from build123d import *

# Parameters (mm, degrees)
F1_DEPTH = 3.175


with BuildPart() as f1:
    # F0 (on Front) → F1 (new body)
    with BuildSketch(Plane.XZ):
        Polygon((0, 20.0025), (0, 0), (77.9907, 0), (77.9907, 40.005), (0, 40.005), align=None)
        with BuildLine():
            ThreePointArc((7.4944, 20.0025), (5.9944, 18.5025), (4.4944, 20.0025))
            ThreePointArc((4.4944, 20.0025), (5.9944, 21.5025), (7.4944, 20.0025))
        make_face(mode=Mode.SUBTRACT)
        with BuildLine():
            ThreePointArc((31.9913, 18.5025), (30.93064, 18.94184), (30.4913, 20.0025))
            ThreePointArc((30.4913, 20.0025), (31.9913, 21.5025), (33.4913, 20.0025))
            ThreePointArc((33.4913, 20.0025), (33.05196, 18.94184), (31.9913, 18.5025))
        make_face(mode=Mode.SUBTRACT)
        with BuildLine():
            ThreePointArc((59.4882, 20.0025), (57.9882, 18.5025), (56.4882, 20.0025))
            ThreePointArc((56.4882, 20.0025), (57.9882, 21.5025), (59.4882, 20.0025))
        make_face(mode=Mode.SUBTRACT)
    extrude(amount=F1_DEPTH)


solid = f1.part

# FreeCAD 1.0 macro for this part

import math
import FreeCAD as App
import Part
import Sketcher
from FreeCAD import Vector
Q = App.Units.Quantity


def add_polygon(sketch, points):
    """Adds a closed chain of lines whose ends are joined by coincident constraints."""
    first, n = sketch.GeometryCount, len(points)
    for a, b in zip(points, points[1:] + points[:1]):
        sketch.addGeometry(Part.LineSegment(App.Vector(*a, 0), App.Vector(*b, 0)), False)
    for i in range(n):
        sketch.addConstraint(Sketcher.Constraint("Coincident", first + i, 2, first + (i + 1) % n, 1))

doc = App.newDocument("Part")
params = doc.addObject("Spreadsheet::Sheet", "Params")
for row, (alias, value) in enumerate([
    ("sketch1_diameter", "3 mm"),
    ("pad1_length", "3.175 mm"),
], start=1):
    params.set(f"A{row}", alias)
    params.set(f"B{row}", "=" + value)
    params.setAlias(f"B{row}", alias)

body = doc.addObject("PartDesign::Body", "Body")

sketch1 = doc.addObject("Sketcher::SketchObject", "Sketch")
body.addObject(sketch1)
sketch1.AttachmentSupport = (doc.XZ_Plane, [""])
sketch1.MapMode = "FlatFace"
add_polygon(sketch1, [(0, 0), (77.9907, 0), (77.9907, 40.005), (0, 40.005)])
sketch1.addGeometry(Part.Circle(Vector(5.9944, 20.0025, 0), Vector(0, 0, 1), 1.5), False)
sketch1.addGeometry(Part.ArcOfCircle(Part.Circle(Vector(31.991299, 20.002501, 0), Vector(0, 0, 1), 1.500001), math.radians(-89.999978), math.radians(-0.000022)), False)
sketch1.addGeometry(Part.ArcOfCircle(Part.Circle(Vector(31.991301, 20.002501, 0), Vector(0, 0, 1), 1.500001), math.radians(-179.999978), math.radians(-90.000022)), False)
sketch1.addGeometry(Part.ArcOfCircle(Part.Circle(Vector(31.9913, 20.0025, 0), Vector(0, 0, 1), 1.5), math.radians(0), math.radians(180)), False)
sketch1.addGeometry(Part.Circle(Vector(57.9882, 20.0025, 0), Vector(0, 0, 1), 1.5), False)
sketch1.addConstraint([
    Sketcher.Constraint("Tangent", 5, 1, 6, 2),
    Sketcher.Constraint("Tangent", 6, 1, 7, 2),
    Sketcher.Constraint("Tangent", 7, 1, 5, 2),
    Sketcher.Constraint("Horizontal", 0),
    Sketcher.Constraint("Vertical", 1),
    Sketcher.Constraint("Horizontal", 2),
    Sketcher.Constraint("Vertical", 3),
    Sketcher.Constraint("Coincident", 3, 2, -1, 1),
    Sketcher.Constraint("Equal", 4, 5),
    Sketcher.Constraint("Equal", 7, 8),
    Sketcher.Constraint("Horizontal", 4, 3, 5, 3),
    Sketcher.Constraint("Horizontal", 7, 3, 8, 3),
    Sketcher.Constraint("Horizontal", 8, 3, 6, 1),
    Sketcher.Constraint("Horizontal", 6, 1, 7, 1),
    Sketcher.Constraint("Vertical", 7, 3, 5, 1),
    Sketcher.Constraint("Diameter", 4, Q("3 mm")),
    Sketcher.Constraint("DistanceY", 1, 1, 1, 2, Q("40.005 mm")),
    Sketcher.Constraint("DistanceX", 0, 1, 0, 2, Q("77.9907 mm")),
    Sketcher.Constraint("DistanceX", -1, 1, 4, 3, Q("5.9944 mm")),
    Sketcher.Constraint("DistanceY", -1, 1, 4, 3, Q("20.0025 mm")),
    Sketcher.Constraint("DistanceX", -1, 1, 5, 3, Q("31.991299 mm")),
    Sketcher.Constraint("DistanceX", -1, 1, 8, 3, Q("57.9882 mm")),
])
sketch1.setExpression("Constraints[19]", "Params.sketch1_diameter")
pad1 = doc.addObject("PartDesign::Pad", "Pad")
body.addObject(pad1)
pad1.Profile = sketch1
pad1.setExpression("Length", "Params.pad1_length")

doc.recompute()
